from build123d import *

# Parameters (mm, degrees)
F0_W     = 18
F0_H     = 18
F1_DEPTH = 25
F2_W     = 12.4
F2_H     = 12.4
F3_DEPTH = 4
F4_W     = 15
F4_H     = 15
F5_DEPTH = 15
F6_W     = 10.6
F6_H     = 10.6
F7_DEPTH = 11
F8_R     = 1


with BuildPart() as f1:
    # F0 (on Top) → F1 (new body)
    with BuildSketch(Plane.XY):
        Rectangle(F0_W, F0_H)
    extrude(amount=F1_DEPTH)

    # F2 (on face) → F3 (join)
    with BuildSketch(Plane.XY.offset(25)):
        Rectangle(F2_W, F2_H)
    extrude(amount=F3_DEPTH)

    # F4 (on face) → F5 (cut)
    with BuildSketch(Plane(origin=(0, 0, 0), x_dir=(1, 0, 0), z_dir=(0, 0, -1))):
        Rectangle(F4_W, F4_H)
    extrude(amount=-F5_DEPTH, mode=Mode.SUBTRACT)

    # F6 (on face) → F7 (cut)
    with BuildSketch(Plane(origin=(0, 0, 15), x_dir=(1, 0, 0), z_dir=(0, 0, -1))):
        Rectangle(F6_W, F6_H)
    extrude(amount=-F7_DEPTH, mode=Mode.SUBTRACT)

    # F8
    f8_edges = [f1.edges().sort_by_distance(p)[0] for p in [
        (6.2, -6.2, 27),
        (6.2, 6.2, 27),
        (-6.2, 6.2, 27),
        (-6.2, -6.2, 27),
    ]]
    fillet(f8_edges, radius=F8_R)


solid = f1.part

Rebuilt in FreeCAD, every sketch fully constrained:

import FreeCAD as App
import Part
import Sketcher
from FreeCAD import Vector
Q = App.Units.Quantity


def edges_at(feature, points):
    """Names of the edges that pass closest to the given points."""
    edges = feature.Shape.Edges
    near = lambda p: min(range(len(edges)), key=lambda i: edges[i].distToShape(Part.Vertex(*p))[0])
    return sorted({f"Edge{near(p) + 1}" for p in points})


def add_polygon(sketch, points):
    """Adds a closed chain of lines whose ends are joined by coincident constraints."""
    first, n = sketch.GeometryCount, len(points)
    for a, b in zip(points, points[1:] + points[:1]):
        sketch.addGeometry(Part.LineSegment(App.Vector(*a, 0), App.Vector(*b, 0)), False)
    for i in range(n):
        sketch.addConstraint(Sketcher.Constraint("Coincident", first + i, 2, first + (i + 1) % n, 1))

doc = App.newDocument("Part")
body = doc.addObject("PartDesign::Body", "Body")

# Sketch on XY plane
sketch1 = body.newObject("Sketcher::SketchObject", "Sketch")
sketch1.AttachmentSupport = (doc.getObject("XY_Plane"), [""])
sketch1.MapMode = "FlatFace"
add_polygon(sketch1, [(-9, 9), (-9, -9), (9, -9), (9, 9)])  # lines 0-3
sketch1.addConstraint([
    Sketcher.Constraint("Vertical", 0),
    Sketcher.Constraint("Horizontal", 1),
    Sketcher.Constraint("Vertical", 2),
    Sketcher.Constraint("Horizontal", 3),
    Sketcher.Constraint("Symmetric", 0, 2, 2, 2, -1, 1),
    Sketcher.Constraint("Equal", 3, 0),
    Sketcher.Constraint("DistanceX", 1, 1, 1, 2, Q("18 mm")),
])
pad1 = body.newObject("PartDesign::Pad", "Pad")
pad1.Profile = sketch1
pad1.Length = 25

# Sketch on XY plane
sketch2 = body.newObject("Sketcher::SketchObject", "Sketch001")
sketch2.AttachmentSupport = (doc.getObject("XY_Plane"), [""])
sketch2.MapMode = "FlatFace"
sketch2.AttachmentOffset = App.Placement(Vector(0, 0, 25), App.Rotation())
add_polygon(sketch2, [(-6, 6), (-6, -6), (6, -6), (6, 6)])  # lines 0-3
sketch2.addConstraint([
    Sketcher.Constraint("Vertical", 0),
    Sketcher.Constraint("Horizontal", 1),
    Sketcher.Constraint("Vertical", 2),
    Sketcher.Constraint("Horizontal", 3),
    Sketcher.Constraint("Symmetric", 0, 2, 2, 2, -1, 1),
    Sketcher.Constraint("Equal", 3, 0),
    Sketcher.Constraint("DistanceX", 1, 1, 1, 2, Q("12.4 mm")),
])
pad2 = body.newObject("PartDesign::Pad", "Pad001")
pad2.Profile = sketch2
pad2.Length = 4

# Sketch on XY plane
sketch3 = body.newObject("Sketcher::SketchObject", "Sketch002")
sketch3.AttachmentSupport = (doc.getObject("XY_Plane"), [""])
sketch3.MapMode = "FlatFace"
add_polygon(sketch3, [(-8, -8), (-8, 8), (8, 8), (8, -8)])  # lines 0-3
sketch3.addConstraint([
    Sketcher.Constraint("Vertical", 0),
    Sketcher.Constraint("Horizontal", 1),
    Sketcher.Constraint("Vertical", 2),
    Sketcher.Constraint("Horizontal", 3),
    Sketcher.Constraint("Symmetric", 0, 2, 2, 2, -1, 1),
    Sketcher.Constraint("Equal", 3, 0),
    Sketcher.Constraint("DistanceX", 1, 1, 1, 2, Q("15 mm")),
])
pocket1 = body.newObject("PartDesign::Pocket", "Pocket")
pocket1.Profile = sketch3
pocket1.Length = 15
pocket1.Reversed = True

# Sketch on XY plane
sketch4 = body.newObject("Sketcher::SketchObject", "Sketch003")
sketch4.AttachmentSupport = (doc.getObject("XY_Plane"), [""])
sketch4.MapMode = "FlatFace"
sketch4.AttachmentOffset = App.Placement(Vector(0, 0, 15), App.Rotation())
add_polygon(sketch4, [(-5, -5), (-5, 5), (5, 5), (5, -5)])  # lines 0-3
sketch4.addConstraint([
    Sketcher.Constraint("Vertical", 0),
    Sketcher.Constraint("Horizontal", 1),
    Sketcher.Constraint("Vertical", 2),
    Sketcher.Constraint("Horizontal", 3),
    Sketcher.Constraint("Symmetric", 0, 2, 2, 2, -1, 1),
    Sketcher.Constraint("Equal", 3, 0),
    Sketcher.Constraint("DistanceX", 1, 1, 1, 2, Q("10.6 mm")),
])
pocket2 = body.newObject("PartDesign::Pocket", "Pocket001")
pocket2.Profile = sketch4
pocket2.Length = 11
pocket2.Reversed = True
doc.recompute()

fillet = body.newObject("PartDesign::Fillet", "Fillet")
fillet.Base = (pocket2, edges_at(pocket2, [
    (6.2, -6.2, 27),
    (6.2, 6.2, 27),
    (-6.2, 6.2, 27),
    (-6.2, -6.2, 27),
]))
fillet.Radius = 1

doc.recompute()
